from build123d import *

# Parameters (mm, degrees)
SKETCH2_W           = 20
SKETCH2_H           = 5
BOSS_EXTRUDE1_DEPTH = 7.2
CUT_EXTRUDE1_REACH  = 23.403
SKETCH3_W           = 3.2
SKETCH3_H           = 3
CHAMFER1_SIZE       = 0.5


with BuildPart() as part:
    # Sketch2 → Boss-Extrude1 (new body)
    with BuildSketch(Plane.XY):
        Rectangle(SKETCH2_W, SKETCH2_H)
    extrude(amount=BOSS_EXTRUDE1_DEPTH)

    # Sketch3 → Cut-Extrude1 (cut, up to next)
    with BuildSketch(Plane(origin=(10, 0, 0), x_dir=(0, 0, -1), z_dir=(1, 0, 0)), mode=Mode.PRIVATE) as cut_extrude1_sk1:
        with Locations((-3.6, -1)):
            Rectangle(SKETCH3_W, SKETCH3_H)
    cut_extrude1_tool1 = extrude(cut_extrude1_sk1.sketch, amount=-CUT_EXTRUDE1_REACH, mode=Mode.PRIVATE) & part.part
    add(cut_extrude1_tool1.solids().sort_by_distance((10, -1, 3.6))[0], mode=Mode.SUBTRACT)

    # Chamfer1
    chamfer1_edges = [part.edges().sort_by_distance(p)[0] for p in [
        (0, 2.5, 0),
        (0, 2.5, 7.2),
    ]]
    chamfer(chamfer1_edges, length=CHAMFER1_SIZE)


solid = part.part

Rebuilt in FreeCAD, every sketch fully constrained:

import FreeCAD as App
import Part
import Sketcher
Q = App.Units.Quantity


def edges_at(feature, points):
    """Names of the edges that pass closest to the given points."""
    edges = feature.Shape.Edges
    near = lambda p: min(range(len(edges)), key=lambda i: edges[i].distToShape(Part.Vertex(*p))[0])
    return sorted({f"Edge{near(p) + 1}" for p in points})

doc = App.newDocument("Part")
body = doc.addObject("PartDesign::Body", "Body")

sketch1 = body.newObject("Sketcher::SketchObject", "Sketch")
sketch1.AttachmentSupport = (doc.getObject("XY_Plane"), [""])
sketch1.MapMode = "FlatFace"
sketch1.addGeometry([
    Part.LineSegment(App.Vector(-10, 2.5, 0), App.Vector(-10, -2.5, 0)),
    Part.LineSegment(App.Vector(-10, -2.5, 0), App.Vector(10, -2.5, 0)),
    Part.LineSegment(App.Vector(10, -2.5, 0), App.Vector(10, 2.5, 0)),
    Part.LineSegment(App.Vector(10, 2.5, 0), App.Vector(-10, 2.5, 0)),
], False)
sketch1.addConstraint([
    Sketcher.Constraint("Coincident", 0, 2, 1, 1),
    Sketcher.Constraint("Coincident", 1, 2, 2, 1),
    Sketcher.Constraint("Coincident", 2, 2, 3, 1),
    Sketcher.Constraint("Coincident", 3, 2, 0, 1),
    Sketcher.Constraint("Vertical", 0),
    Sketcher.Constraint("Horizontal", 1),
    Sketcher.Constraint("Vertical", 2),
    Sketcher.Constraint("Horizontal", 3),
    Sketcher.Constraint("Symmetric", 0, 2, 2, 2, -1, 1),
    Sketcher.Constraint("DistanceX", 1, 1, 1, 2, Q("20 mm")),
    Sketcher.Constraint("DistanceY", 0, 2, 0, 1, Q("5 mm")),
])
pad1 = body.newObject("PartDesign::Pad", "Pad")
pad1.Profile = sketch1
pad1.Length = 7.2

sketch2 = body.newObject("Sketcher::SketchObject", "Sketch001")
sketch2.AttachmentSupport = (doc.getObject("YZ_Plane"), [""])
sketch2.MapMode = "FlatFace"
sketch2.AttachmentOffset = App.Placement(App.Vector(0, 0, 10), App.Rotation())
sketch2.addGeometry([
    Part.LineSegment(App.Vector(0.5, 5.2, 0), App.Vector(-2.5, 5.2, 0)),
    Part.LineSegment(App.Vector(-2.5, 5.2, 0), App.Vector(-2.5, 2, 0)),
    Part.LineSegment(App.Vector(-2.5, 2, 0), App.Vector(0.5, 2, 0)),
    Part.LineSegment(App.Vector(0.5, 2, 0), App.Vector(0.5, 5.2, 0)),
], False)
sketch2.addConstraint([
    Sketcher.Constraint("Coincident", 0, 2, 1, 1),
    Sketcher.Constraint("Coincident", 1, 2, 2, 1),
    Sketcher.Constraint("Coincident", 2, 2, 3, 1),
    Sketcher.Constraint("Coincident", 3, 2, 0, 1),
    Sketcher.Constraint("Horizontal", 0),
    Sketcher.Constraint("Vertical", 1),
    Sketcher.Constraint("Horizontal", 2),
    Sketcher.Constraint("Vertical", 3),
    Sketcher.Constraint("DistanceX", 0, 2, 0, 1, Q("3 mm")),
    Sketcher.Constraint("DistanceY", 1, 2, 1, 1, Q("3.2 mm")),
    Sketcher.Constraint("DistanceY", -1, 1, 1, 2, Q("2 mm")),
    Sketcher.Constraint("DistanceX", 0, 2, -1, 1, Q("2.5 mm")),
])
pocket1 = body.newObject("PartDesign::Pocket", "Pocket")
pocket1.Profile = sketch2
pocket1.Type = "UpToFirst"
doc.recompute()

chamfer = body.newObject("PartDesign::Chamfer", "Chamfer")
chamfer.Base = (pocket1, edges_at(pocket1, [(0, 2.5, 0), (0, 2.5, 7.2)]))
chamfer.Size = 0.5

doc.recompute()
